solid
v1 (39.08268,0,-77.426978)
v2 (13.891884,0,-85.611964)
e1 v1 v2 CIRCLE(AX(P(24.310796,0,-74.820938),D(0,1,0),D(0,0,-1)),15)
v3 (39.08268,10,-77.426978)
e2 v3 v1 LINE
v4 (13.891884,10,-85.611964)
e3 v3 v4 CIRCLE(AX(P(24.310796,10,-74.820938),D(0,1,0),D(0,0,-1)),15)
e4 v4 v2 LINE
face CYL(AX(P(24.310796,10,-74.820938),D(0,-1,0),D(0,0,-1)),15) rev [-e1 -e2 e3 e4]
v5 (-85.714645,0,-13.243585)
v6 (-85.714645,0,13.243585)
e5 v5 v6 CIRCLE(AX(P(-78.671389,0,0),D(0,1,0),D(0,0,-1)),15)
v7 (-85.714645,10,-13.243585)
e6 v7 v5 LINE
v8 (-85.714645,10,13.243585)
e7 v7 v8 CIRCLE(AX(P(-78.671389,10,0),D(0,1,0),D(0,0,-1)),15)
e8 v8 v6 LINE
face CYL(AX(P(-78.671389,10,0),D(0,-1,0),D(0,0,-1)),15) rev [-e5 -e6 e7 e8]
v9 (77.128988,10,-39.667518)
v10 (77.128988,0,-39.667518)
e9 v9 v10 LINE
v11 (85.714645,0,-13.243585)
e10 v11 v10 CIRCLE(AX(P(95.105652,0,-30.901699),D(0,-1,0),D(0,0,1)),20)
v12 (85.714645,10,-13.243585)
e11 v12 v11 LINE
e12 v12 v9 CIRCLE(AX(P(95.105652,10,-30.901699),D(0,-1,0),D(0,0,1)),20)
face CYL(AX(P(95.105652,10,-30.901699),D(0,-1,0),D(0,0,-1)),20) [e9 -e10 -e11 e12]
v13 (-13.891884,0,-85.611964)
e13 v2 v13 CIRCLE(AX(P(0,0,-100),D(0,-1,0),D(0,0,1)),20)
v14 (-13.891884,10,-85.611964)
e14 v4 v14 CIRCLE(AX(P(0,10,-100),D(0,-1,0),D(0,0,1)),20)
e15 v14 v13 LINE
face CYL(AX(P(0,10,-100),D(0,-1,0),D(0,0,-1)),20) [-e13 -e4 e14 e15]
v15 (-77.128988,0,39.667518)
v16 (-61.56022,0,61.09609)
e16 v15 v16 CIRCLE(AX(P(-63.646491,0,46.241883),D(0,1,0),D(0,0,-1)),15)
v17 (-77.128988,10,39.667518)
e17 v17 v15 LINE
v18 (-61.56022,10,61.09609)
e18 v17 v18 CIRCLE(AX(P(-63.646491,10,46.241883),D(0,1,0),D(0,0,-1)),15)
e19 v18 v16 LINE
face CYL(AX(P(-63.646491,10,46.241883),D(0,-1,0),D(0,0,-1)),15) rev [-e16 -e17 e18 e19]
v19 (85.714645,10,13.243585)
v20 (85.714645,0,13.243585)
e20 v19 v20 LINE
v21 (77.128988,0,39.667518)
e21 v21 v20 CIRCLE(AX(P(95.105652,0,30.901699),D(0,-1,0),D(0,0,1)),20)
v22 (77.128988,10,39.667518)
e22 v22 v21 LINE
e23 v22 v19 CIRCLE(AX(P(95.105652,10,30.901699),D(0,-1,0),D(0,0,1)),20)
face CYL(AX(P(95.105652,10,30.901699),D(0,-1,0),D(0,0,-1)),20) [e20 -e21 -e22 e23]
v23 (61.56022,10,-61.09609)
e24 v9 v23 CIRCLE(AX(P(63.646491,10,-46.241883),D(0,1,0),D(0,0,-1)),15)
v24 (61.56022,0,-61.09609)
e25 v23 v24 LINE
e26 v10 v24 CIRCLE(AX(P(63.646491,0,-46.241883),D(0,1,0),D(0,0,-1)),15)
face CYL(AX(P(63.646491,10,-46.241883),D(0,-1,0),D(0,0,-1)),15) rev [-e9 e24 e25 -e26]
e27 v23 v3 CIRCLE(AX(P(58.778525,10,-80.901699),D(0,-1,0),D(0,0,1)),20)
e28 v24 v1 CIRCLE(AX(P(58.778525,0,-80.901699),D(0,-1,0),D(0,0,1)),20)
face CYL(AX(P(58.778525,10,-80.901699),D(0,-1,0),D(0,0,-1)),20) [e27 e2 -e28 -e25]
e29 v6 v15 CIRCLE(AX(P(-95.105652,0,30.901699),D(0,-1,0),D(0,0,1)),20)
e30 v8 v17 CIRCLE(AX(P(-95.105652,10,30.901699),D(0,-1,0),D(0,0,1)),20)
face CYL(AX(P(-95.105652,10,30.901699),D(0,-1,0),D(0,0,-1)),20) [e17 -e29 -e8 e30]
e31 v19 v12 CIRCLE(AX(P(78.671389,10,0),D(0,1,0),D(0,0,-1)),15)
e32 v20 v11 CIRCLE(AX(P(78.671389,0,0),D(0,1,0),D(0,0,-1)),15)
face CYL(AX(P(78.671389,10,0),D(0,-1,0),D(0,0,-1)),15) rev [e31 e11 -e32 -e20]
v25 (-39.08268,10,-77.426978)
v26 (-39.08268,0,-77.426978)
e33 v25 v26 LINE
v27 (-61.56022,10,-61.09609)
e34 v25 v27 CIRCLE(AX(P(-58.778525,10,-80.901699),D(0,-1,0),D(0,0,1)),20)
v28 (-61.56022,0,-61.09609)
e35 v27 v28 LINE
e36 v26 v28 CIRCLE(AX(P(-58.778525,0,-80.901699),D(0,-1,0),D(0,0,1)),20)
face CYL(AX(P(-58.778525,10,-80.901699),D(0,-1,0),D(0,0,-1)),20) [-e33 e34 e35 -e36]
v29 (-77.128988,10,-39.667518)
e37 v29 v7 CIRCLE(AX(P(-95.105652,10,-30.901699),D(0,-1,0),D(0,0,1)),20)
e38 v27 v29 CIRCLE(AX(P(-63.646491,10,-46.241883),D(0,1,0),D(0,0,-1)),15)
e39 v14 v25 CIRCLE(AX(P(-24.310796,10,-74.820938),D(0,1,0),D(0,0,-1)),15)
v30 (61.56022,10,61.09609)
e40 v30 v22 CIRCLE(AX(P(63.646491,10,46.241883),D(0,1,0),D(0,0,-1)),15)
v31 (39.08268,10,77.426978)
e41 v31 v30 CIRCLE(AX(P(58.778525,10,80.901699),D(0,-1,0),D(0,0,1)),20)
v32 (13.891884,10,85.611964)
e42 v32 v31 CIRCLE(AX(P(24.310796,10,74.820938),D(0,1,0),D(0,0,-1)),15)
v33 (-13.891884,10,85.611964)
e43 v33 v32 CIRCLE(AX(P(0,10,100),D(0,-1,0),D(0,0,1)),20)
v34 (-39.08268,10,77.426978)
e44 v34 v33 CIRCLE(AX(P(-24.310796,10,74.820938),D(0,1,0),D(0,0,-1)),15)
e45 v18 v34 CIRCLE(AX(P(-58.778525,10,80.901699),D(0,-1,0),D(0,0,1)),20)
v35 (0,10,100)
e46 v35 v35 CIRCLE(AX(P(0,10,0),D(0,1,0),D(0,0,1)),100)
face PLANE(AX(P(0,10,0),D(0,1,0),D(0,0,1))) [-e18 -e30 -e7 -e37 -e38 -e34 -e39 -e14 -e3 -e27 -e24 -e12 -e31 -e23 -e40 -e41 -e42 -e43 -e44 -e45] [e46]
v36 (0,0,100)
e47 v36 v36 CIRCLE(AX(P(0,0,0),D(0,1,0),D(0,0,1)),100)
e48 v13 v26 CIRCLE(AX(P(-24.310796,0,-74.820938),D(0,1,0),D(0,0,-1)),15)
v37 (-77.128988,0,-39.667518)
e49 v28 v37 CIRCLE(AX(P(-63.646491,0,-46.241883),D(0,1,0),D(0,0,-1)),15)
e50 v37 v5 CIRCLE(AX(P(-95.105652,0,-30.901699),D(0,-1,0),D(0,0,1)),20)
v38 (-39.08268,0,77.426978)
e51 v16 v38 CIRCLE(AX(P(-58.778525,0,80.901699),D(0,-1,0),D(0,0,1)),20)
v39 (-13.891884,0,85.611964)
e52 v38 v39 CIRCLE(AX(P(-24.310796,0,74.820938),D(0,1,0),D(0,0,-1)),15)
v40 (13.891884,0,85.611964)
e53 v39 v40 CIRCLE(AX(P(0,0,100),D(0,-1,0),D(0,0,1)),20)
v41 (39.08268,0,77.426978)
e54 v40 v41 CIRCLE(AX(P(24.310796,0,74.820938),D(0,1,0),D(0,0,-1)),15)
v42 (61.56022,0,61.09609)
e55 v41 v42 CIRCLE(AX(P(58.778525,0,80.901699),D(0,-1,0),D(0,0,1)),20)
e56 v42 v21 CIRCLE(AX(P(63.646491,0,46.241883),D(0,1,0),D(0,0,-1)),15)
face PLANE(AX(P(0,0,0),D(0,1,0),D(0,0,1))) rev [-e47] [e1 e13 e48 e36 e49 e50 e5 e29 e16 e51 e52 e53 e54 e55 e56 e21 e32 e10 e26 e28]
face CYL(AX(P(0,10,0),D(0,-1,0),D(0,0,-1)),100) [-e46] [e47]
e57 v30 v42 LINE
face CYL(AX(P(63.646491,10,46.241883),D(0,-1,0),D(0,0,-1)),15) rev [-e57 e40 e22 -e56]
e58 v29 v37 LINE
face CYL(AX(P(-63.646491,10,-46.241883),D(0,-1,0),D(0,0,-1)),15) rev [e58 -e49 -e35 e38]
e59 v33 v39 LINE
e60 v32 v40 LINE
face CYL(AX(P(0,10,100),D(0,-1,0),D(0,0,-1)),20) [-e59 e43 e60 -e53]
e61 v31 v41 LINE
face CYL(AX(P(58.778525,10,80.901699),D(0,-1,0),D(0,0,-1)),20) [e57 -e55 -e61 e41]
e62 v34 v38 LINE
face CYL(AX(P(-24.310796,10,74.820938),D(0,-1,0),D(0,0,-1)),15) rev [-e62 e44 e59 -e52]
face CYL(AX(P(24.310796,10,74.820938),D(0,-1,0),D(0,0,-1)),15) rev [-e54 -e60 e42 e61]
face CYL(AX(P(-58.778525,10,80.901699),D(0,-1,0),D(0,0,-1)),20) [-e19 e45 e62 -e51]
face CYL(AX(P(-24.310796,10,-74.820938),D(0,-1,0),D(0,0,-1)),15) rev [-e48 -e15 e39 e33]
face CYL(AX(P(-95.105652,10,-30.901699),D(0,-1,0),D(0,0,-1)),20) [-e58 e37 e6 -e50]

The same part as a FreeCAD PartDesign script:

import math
import FreeCAD as App
import Part
import Sketcher

V = App.Vector
Q = App.Units.Quantity

doc = App.newDocument("Part")
params = doc.addObject("Spreadsheet::Sheet", "Params")
for row, (alias, value) in enumerate([
    ("sketch1_diameter", "200 mm"),
    ("sketch1_radius", "15 mm"),
    ("sketch1_radius2", "20 mm"),
    ("pad1_length", "10 mm"),
], start=1):
    params.set(f"A{row}", alias)
    params.set(f"B{row}", "=" + value)
    params.setAlias(f"B{row}", alias)

body = doc.addObject("PartDesign::Body", "Body")

sketch1 = body.newObject("Sketcher::SketchObject", "Sketch")
sketch1.AttachmentSupport = (doc.getObject("XZ_Plane"), [""])
sketch1.MapMode = "FlatFace"
sketch1.addGeometry([
    Part.Circle(V(0, 0, 0), V(0, 0, 1), 100),
    Part.ArcOfCircle(Part.Circle(V(-24, -75, 0), V(0, 0, 1), 15), math.radians(-170), math.radians(-46)),
    Part.ArcOfCircle(Part.Circle(V(0, -100, 0), V(0, 0, 1), 20), math.radians(46), math.radians(134)),
    Part.ArcOfCircle(Part.Circle(V(24, -75, 0), V(0, 0, 1), 15), math.radians(-134), math.radians(-10)),
    Part.ArcOfCircle(Part.Circle(V(59, -81, 0), V(0, 0, 1), 20), math.radians(82), math.radians(170)),
    Part.ArcOfCircle(Part.Circle(V(64, -46, 0), V(0, 0, 1), 15), math.radians(-98), math.radians(26)),
    Part.ArcOfCircle(Part.Circle(V(95, -31, 0), V(0, 0, 1), 20), math.radians(118), math.radians(206)),
    Part.ArcOfCircle(Part.Circle(V(79, 0, 0), V(0, 0, 1), 15), math.radians(-62), math.radians(62)),
    Part.ArcOfCircle(Part.Circle(V(95, 31, 0), V(0, 0, 1), 20), math.radians(154), math.radians(242)),
    Part.ArcOfCircle(Part.Circle(V(64, 46, 0), V(0, 0, 1), 15), math.radians(-26), math.radians(98)),
    Part.ArcOfCircle(Part.Circle(V(59, 81, 0), V(0, 0, 1), 20), math.radians(-170), math.radians(-82)),
    Part.ArcOfCircle(Part.Circle(V(24, 75, 0), V(0, 0, 1), 15), math.radians(10), math.radians(134)),
    Part.ArcOfCircle(Part.Circle(V(0, 100, 0), V(0, 0, 1), 20), math.radians(-134), math.radians(-46)),
    Part.ArcOfCircle(Part.Circle(V(-24, 75, 0), V(0, 0, 1), 15), math.radians(46), math.radians(170)),
    Part.ArcOfCircle(Part.Circle(V(-59, 81, 0), V(0, 0, 1), 20), math.radians(-98), math.radians(-10)),
    Part.ArcOfCircle(Part.Circle(V(-64, 46, 0), V(0, 0, 1), 15), math.radians(82), math.radians(206)),
    Part.ArcOfCircle(Part.Circle(V(-95, 31, 0), V(0, 0, 1), 20), math.radians(-62), math.radians(26)),
    Part.ArcOfCircle(Part.Circle(V(-79, 0, 0), V(0, 0, 1), 15), math.radians(118), math.radians(242)),
    Part.ArcOfCircle(Part.Circle(V(-95, -31, 0), V(0, 0, 1), 20), math.radians(-26), math.radians(62)),
    Part.ArcOfCircle(Part.Circle(V(-64, -46, 0), V(0, 0, 1), 15), math.radians(154), math.radians(278)),
    Part.ArcOfCircle(Part.Circle(V(-59, -81, 0), V(0, 0, 1), 20), math.radians(10), math.radians(98)),
], False)
sketch1.addConstraint([
    Sketcher.Constraint("Tangent", 1, 2, 2, 2),
    Sketcher.Constraint("Tangent", 2, 1, 3, 1),
    Sketcher.Constraint("Tangent", 3, 2, 4, 2),
    Sketcher.Constraint("Tangent", 4, 1, 5, 1),
    Sketcher.Constraint("Tangent", 5, 2, 6, 2),
    Sketcher.Constraint("Tangent", 6, 1, 7, 1),
    Sketcher.Constraint("Tangent", 7, 2, 8, 2),
    Sketcher.Constraint("Tangent", 8, 1, 9, 1),
    Sketcher.Constraint("Tangent", 9, 2, 10, 2),
    Sketcher.Constraint("Tangent", 10, 1, 11, 1),
    Sketcher.Constraint("Tangent", 11, 2, 12, 2),
    Sketcher.Constraint("Tangent", 12, 1, 13, 1),
    Sketcher.Constraint("Tangent", 13, 2, 14, 2),
    Sketcher.Constraint("Tangent", 14, 1, 15, 1),
    Sketcher.Constraint("Tangent", 15, 2, 16, 2),
    Sketcher.Constraint("Tangent", 16, 1, 17, 1),
    Sketcher.Constraint("Tangent", 17, 2, 18, 2),
    Sketcher.Constraint("Tangent", 18, 1, 19, 1),
    Sketcher.Constraint("Tangent", 19, 2, 20, 2),
    Sketcher.Constraint("Tangent", 20, 1, 1, 1),
    Sketcher.Constraint("Coincident", 0, 3, -1, 1),
    Sketcher.Constraint("Equal", 1, 3),
    Sketcher.Constraint("Equal", 2, 4),
    Sketcher.Constraint("Equal", 3, 5),
    Sketcher.Constraint("Equal", 4, 6),
    Sketcher.Constraint("Equal", 5, 7),
    Sketcher.Constraint("Equal", 6, 8),
    Sketcher.Constraint("Equal", 7, 9),
    Sketcher.Constraint("Equal", 8, 10),
    Sketcher.Constraint("Equal", 9, 11),
    Sketcher.Constraint("Equal", 10, 12),
    Sketcher.Constraint("Equal", 11, 13),
    Sketcher.Constraint("Equal", 12, 14),
    Sketcher.Constraint("Equal", 13, 15),
    Sketcher.Constraint("Equal", 14, 16),
    Sketcher.Constraint("Equal", 15, 17),
    Sketcher.Constraint("Equal", 16, 18),
    Sketcher.Constraint("Equal", 17, 19),
    Sketcher.Constraint("Equal", 18, 20),
    Sketcher.Constraint("Symmetric", 1, 3, 11, 3, -1, 1),
    Sketcher.Constraint("Symmetric", 3, 3, 13, 3, -1, 1),
    Sketcher.Constraint("Symmetric", 5, 3, 15, 3, -1, 1),
    Sketcher.Constraint("Symmetric", 7, 3, 17, 3, -1, 1),
    Sketcher.Constraint("Symmetric", 9, 3, 19, 3, -1, 1),
    Sketcher.Constraint("Symmetric", 1, 3, 3, 3, -2),
    Sketcher.Constraint("Symmetric", 9, 3, 15, 3, -2),
    Sketcher.Constraint("PointOnObject", 7, 3, -1),
    Sketcher.Constraint("Diameter", 0, Q("200 mm")),
    Sketcher.Constraint("Radius", 1, Q("15 mm")),
    Sketcher.Constraint("Radius", 2, Q("20 mm")),
    Sketcher.Constraint("DistanceY", 2, 3, -1, 1, Q("100 mm")),
    Sketcher.Constraint("DistanceY", 4, 3, 6, 3, Q("50 mm")),
    Sketcher.Constraint("DistanceY", 4, 3, -1, 1, Q("80.901699 mm")),
    Sketcher.Constraint("DistanceX", 5, 3, 7, 3, Q("15.024898 mm")),
    Sketcher.Constraint("DistanceX", -1, 1, 5, 3, Q("63.646491 mm")),
])
sketch1.setExpression("Constraints[47]", "Params.sketch1_diameter")
sketch1.setExpression("Constraints[48]", "Params.sketch1_radius")
sketch1.setExpression("Constraints[49]", "Params.sketch1_radius2")
pad1 = body.newObject("PartDesign::Pad", "Pad")
pad1.Profile = sketch1
pad1.setExpression("Length", "Params.pad1_length")
pad1.Reversed = True

doc.recompute()
